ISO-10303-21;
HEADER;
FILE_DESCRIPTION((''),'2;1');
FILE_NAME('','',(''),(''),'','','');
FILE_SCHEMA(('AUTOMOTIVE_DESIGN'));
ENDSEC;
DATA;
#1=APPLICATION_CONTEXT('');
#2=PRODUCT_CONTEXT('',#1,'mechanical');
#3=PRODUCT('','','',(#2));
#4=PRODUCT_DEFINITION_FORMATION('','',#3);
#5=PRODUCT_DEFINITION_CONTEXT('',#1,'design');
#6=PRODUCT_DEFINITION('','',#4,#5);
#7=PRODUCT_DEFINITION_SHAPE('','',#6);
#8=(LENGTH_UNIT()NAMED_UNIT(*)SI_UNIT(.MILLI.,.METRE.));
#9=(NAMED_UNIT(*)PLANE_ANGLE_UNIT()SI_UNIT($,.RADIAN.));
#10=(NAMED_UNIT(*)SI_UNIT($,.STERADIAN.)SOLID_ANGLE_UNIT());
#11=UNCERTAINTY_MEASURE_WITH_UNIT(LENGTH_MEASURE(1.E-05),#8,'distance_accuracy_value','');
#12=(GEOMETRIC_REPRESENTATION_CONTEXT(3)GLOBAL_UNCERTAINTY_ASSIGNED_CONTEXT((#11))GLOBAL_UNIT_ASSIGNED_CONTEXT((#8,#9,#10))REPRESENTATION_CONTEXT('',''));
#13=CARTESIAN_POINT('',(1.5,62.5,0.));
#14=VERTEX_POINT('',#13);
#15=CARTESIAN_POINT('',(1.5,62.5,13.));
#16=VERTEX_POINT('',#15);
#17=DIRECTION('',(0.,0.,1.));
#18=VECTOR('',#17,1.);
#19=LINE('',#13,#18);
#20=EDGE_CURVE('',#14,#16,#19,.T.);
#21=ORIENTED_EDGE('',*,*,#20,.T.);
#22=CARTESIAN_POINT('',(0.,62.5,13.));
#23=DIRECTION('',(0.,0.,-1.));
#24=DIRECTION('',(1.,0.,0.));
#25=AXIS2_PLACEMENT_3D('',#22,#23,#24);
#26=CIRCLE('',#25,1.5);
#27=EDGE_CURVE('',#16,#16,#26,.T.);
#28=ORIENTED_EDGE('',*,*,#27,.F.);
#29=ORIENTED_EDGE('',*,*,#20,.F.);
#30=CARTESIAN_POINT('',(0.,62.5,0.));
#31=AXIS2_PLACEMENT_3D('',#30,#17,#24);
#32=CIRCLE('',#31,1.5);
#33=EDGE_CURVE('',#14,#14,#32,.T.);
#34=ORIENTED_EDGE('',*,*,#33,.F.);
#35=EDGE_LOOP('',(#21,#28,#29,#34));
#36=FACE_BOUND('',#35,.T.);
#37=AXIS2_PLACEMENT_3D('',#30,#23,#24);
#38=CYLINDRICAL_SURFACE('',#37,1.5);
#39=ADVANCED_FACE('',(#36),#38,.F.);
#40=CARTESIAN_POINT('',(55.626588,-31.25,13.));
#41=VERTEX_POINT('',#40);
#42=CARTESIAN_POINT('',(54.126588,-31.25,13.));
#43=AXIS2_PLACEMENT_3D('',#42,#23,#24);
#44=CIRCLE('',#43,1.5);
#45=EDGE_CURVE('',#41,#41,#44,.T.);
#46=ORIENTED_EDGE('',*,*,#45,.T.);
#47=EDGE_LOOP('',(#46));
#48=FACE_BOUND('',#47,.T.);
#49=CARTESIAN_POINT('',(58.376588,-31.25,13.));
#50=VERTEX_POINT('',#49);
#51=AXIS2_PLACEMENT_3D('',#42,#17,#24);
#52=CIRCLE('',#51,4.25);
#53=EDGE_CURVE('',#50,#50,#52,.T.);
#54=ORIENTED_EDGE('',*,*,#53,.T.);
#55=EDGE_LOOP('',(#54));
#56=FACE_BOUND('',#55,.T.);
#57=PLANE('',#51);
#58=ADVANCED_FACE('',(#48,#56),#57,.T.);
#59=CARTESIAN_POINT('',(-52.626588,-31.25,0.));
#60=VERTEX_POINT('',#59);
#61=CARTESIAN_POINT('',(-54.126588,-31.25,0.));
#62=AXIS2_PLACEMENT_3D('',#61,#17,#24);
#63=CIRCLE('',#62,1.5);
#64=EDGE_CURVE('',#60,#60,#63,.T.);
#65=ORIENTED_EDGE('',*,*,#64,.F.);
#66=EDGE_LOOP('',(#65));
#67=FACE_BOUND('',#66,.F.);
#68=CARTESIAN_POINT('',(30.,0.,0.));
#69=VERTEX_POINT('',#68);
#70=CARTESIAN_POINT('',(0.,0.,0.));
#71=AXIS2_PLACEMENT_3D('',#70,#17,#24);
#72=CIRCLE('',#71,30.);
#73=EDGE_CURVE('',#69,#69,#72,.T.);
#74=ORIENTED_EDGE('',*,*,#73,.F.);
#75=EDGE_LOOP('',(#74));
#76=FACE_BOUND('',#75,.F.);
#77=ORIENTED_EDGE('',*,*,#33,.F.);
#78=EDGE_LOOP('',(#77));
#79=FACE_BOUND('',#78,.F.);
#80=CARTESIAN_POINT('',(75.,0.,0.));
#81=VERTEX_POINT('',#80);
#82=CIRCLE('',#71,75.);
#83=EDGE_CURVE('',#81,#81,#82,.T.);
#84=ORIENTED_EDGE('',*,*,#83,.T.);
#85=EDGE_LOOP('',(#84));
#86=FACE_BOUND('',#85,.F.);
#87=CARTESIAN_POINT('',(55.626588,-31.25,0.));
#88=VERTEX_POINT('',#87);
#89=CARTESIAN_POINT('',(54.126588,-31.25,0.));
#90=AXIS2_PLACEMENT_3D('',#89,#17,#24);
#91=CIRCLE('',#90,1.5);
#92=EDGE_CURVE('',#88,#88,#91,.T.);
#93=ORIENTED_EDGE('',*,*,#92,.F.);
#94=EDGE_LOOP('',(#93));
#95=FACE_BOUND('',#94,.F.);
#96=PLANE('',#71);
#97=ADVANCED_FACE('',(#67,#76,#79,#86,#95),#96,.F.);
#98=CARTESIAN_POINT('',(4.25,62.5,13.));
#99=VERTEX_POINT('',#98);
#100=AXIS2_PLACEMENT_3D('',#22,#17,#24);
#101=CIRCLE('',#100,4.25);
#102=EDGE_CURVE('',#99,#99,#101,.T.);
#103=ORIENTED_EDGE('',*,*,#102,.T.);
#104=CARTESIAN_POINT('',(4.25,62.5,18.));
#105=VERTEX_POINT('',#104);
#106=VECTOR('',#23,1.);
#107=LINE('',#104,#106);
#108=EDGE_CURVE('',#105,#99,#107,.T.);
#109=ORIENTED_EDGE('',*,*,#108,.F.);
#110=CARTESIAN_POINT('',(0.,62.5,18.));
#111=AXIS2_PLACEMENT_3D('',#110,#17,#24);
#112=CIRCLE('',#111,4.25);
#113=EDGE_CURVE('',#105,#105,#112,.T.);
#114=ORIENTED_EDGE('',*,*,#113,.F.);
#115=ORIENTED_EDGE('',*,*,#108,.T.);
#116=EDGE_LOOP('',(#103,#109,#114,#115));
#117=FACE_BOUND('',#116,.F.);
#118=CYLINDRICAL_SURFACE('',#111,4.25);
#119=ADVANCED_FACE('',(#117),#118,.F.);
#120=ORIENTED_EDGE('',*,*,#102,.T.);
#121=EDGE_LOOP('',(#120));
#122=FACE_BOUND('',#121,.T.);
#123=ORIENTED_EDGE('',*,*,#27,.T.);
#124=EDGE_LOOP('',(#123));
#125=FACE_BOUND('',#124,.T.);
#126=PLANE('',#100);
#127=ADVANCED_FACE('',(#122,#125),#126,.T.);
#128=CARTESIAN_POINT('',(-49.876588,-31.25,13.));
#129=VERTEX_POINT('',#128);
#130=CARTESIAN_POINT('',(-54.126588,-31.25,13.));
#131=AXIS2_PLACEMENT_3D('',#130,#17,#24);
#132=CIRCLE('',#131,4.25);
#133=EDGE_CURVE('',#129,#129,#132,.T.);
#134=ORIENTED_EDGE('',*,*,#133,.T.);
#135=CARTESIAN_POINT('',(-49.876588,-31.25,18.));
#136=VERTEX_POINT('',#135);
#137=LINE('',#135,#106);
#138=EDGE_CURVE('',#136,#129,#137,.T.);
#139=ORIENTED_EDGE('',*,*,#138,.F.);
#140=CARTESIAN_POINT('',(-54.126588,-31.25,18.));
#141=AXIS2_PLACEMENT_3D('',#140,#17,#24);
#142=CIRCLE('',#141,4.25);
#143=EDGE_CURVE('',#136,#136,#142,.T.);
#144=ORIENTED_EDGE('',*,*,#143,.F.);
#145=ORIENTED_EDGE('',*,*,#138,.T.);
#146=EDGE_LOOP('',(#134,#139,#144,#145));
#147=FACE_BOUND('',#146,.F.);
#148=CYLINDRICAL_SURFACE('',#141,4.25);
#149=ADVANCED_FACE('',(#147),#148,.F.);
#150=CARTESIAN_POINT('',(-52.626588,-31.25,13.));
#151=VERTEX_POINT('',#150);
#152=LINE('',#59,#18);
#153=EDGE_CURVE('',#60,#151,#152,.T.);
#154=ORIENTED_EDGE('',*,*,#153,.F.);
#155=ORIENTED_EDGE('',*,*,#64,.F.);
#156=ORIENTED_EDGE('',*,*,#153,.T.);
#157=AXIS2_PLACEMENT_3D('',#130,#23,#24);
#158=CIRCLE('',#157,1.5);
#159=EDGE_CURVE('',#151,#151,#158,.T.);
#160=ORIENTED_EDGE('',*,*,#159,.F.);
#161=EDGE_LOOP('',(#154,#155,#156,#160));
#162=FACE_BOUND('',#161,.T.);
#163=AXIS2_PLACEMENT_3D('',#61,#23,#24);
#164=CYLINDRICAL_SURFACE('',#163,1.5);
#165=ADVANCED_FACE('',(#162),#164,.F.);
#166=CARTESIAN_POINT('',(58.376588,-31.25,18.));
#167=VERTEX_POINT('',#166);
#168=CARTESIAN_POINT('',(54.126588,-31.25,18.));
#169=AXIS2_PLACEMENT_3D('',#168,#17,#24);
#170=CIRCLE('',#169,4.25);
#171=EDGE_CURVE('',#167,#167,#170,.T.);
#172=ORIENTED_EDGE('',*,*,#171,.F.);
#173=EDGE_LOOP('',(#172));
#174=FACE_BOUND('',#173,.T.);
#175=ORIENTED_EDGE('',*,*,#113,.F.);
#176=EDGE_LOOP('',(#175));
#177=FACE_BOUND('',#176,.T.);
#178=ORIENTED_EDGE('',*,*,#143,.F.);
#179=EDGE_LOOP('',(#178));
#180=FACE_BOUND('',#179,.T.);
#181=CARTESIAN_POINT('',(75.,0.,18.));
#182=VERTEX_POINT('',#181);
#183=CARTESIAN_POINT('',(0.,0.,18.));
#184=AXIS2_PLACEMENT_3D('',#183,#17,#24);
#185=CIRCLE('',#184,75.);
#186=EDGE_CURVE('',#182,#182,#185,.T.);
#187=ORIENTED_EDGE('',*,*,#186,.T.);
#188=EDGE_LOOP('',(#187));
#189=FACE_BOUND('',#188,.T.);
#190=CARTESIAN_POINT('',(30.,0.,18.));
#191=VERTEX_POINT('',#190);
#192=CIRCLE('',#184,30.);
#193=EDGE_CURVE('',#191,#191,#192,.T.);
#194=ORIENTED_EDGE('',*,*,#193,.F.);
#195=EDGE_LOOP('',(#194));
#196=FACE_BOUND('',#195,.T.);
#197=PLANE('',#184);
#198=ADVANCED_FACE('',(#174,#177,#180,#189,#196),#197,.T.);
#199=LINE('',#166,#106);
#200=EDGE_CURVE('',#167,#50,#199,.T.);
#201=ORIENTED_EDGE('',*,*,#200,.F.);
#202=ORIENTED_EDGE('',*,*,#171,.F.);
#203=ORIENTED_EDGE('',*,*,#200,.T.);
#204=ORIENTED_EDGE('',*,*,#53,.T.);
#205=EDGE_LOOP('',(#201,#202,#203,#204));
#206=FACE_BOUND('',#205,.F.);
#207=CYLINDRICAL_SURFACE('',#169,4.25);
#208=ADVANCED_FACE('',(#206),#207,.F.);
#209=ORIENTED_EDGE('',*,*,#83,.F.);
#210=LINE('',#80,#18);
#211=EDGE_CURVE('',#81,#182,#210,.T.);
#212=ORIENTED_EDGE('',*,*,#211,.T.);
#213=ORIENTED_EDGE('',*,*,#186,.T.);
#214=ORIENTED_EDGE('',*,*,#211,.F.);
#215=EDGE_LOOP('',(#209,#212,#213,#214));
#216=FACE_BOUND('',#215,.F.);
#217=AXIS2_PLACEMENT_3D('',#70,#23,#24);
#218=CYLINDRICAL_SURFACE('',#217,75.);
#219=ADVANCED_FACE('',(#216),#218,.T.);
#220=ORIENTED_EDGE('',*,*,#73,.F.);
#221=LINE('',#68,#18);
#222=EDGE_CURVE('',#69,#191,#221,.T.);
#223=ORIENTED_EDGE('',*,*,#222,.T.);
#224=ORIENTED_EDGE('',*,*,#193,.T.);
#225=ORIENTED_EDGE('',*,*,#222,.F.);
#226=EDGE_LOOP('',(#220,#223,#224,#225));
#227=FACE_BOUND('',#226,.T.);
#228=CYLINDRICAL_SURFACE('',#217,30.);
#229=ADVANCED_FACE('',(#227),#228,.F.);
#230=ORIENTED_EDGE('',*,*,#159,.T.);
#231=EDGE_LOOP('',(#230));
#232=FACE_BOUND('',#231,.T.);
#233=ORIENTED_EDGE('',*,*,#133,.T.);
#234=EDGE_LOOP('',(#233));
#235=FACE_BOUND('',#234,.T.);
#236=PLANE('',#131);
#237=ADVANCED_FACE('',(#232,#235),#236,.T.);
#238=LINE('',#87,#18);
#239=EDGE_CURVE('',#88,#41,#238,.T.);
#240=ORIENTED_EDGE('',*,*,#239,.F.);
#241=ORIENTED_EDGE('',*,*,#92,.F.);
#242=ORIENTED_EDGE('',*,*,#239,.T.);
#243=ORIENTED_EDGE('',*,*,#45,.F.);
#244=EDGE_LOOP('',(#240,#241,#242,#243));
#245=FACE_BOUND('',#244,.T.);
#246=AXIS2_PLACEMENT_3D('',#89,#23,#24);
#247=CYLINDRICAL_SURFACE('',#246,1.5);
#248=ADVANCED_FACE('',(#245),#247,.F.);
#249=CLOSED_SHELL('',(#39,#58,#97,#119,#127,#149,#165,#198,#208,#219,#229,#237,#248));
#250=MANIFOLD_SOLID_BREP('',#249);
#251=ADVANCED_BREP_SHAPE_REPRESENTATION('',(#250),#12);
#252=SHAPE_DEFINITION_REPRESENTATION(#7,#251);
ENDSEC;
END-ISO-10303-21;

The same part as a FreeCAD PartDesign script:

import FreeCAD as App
import Part
import Sketcher

V = App.Vector
Q = App.Units.Quantity

doc = App.newDocument("Part")
body = doc.addObject("PartDesign::Body", "Body")

# Sketch on XY plane
sketch1 = body.newObject("Sketcher::SketchObject", "Sketch")
sketch1.AttachmentSupport = (doc.getObject("XY_Plane"), [""])
sketch1.MapMode = "FlatFace"
sketch1.addGeometry([
    Part.Circle(V(0, 0, 0), V(0, 0, 1), 75),  # 0
    Part.Circle(V(-54.1, -31.2, 0), V(0, 0, 1), 1.5),  # 1
    Part.Circle(V(54.1, -31.2, 0), V(0, 0, 1), 1.5),  # 2
    Part.Circle(V(0, 0, 0), V(0, 0, 1), 30),  # 3
    Part.Circle(V(0, 62.5, 0), V(0, 0, 1), 1.5),  # 4
], False)
sketch1.addConstraint([
    Sketcher.Constraint("Coincident", 0, 3, -1, 1),
    Sketcher.Constraint("Coincident", 3, 3, -1, 1),
    Sketcher.Constraint("Equal", 1, 2),
    Sketcher.Constraint("Equal", 2, 4),
    Sketcher.Constraint("Symmetric", 1, 3, 2, 3, -2),
    Sketcher.Constraint("PointOnObject", 4, 3, -2),
    Sketcher.Constraint("Diameter", 0, Q("150 mm")),
    Sketcher.Constraint("Diameter", 1, Q("3 mm")),
    Sketcher.Constraint("Diameter", 3, Q("60 mm")),
    Sketcher.Constraint("DistanceY", -1, 1, 4, 3, Q("62.5 mm")),
    Sketcher.Constraint("DistanceY", 1, 3, -1, 1, Q("31.25 mm")),
    Sketcher.Constraint("DistanceX", 1, 3, -1, 1, Q("54.126588 mm")),
])
pad1 = body.newObject("PartDesign::Pad", "Pad")
pad1.Profile = sketch1
pad1.Length = 18

# Sketch on XY plane
sketch2 = body.newObject("Sketcher::SketchObject", "Sketch001")
sketch2.AttachmentSupport = (doc.getObject("XY_Plane"), [""])
sketch2.MapMode = "FlatFace"
sketch2.AttachmentOffset = App.Placement(V(0, 0, 18), App.Rotation())
sketch2.addGeometry([
    Part.Circle(V(-54.1, -31.2, 0), V(0, 0, 1), 4.2),
    Part.Circle(V(54.1, -31.2, 0), V(0, 0, 1), 4.2),
    Part.Circle(V(0, 62.5, 0), V(0, 0, 1), 4.2),
], False)
sketch2.addConstraint([
    Sketcher.Constraint("Equal", 0, 1),
    Sketcher.Constraint("Equal", 1, 2),
    Sketcher.Constraint("Symmetric", 0, 3, 1, 3, -2),
    Sketcher.Constraint("PointOnObject", 2, 3, -2),
    Sketcher.Constraint("Diameter", 0, Q("8.5 mm")),
    Sketcher.Constraint("DistanceY", -1, 1, 2, 3, Q("62.5 mm")),
    Sketcher.Constraint("DistanceY", 0, 3, -1, 1, Q("31.25 mm")),
    Sketcher.Constraint("DistanceX", 0, 3, -1, 1, Q("54.126588 mm")),
])
pocket1 = body.newObject("PartDesign::Pocket", "Pocket")
pocket1.Profile = sketch2
pocket1.Length = 5

doc.recompute()
